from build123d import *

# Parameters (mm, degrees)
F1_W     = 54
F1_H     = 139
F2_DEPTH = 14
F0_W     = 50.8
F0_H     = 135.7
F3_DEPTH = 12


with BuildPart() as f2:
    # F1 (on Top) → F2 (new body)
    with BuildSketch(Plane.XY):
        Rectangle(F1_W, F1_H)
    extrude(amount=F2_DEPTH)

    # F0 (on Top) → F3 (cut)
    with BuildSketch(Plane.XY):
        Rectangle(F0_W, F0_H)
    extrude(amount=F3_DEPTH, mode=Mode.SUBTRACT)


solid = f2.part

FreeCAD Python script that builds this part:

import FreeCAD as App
import Part
import Sketcher

V = App.Vector
Q = App.Units.Quantity


def add_polygon(sketch, points):
    """Adds a closed chain of lines whose ends are joined by coincident constraints."""
    first, n = sketch.GeometryCount, len(points)
    for a, b in zip(points, points[1:] + points[:1]):
        sketch.addGeometry(Part.LineSegment(App.Vector(*a, 0), App.Vector(*b, 0)), False)
    for i in range(n):
        sketch.addConstraint(Sketcher.Constraint("Coincident", first + i, 2, first + (i + 1) % n, 1))

doc = App.newDocument("Part")
params = doc.addObject("Spreadsheet::Sheet", "Params")
for row, (alias, value) in enumerate([
    ("sketch1_width", "54 mm"),
    ("sketch1_height", "139 mm"),
    ("pad1_length", "14 mm"),
    ("sketch2_width", "50.8 mm"),
    ("sketch2_height", "135.7 mm"),
    ("pocket1_length", "12 mm"),
], start=1):
    params.set(f"A{row}", alias)
    params.set(f"B{row}", "=" + value)
    params.setAlias(f"B{row}", alias)

body = doc.addObject("PartDesign::Body", "Body")

sketch1 = body.newObject("Sketcher::SketchObject", "Sketch")
sketch1.AttachmentSupport = (doc.getObject("XY_Plane"), [""])
sketch1.MapMode = "FlatFace"
add_polygon(sketch1, [(-27, 70), (-27, -70), (27, -70), (27, 70)])
sketch1.addConstraint([
    Sketcher.Constraint("Vertical", 0),
    Sketcher.Constraint("Horizontal", 1),
    Sketcher.Constraint("Vertical", 2),
    Sketcher.Constraint("Horizontal", 3),
    Sketcher.Constraint("Symmetric", 0, 2, 2, 2, -1, 1),
    Sketcher.Constraint("DistanceX", 1, 1, 1, 2, Q("54 mm")),
    Sketcher.Constraint("DistanceY", 0, 2, 0, 1, Q("139 mm")),
])
sketch1.setExpression("Constraints[9]", "Params.sketch1_width")
sketch1.setExpression("Constraints[10]", "Params.sketch1_height")
pad1 = body.newObject("PartDesign::Pad", "Pad")
pad1.Profile = sketch1
pad1.setExpression("Length", "Params.pad1_length")

sketch2 = body.newObject("Sketcher::SketchObject", "Sketch001")
sketch2.AttachmentSupport = (doc.getObject("XY_Plane"), [""])
sketch2.MapMode = "FlatFace"
add_polygon(sketch2, [(-25, 68), (-25, -68), (25, -68), (25, 68)])
sketch2.addConstraint([
    Sketcher.Constraint("Vertical", 0),
    Sketcher.Constraint("Horizontal", 1),
    Sketcher.Constraint("Vertical", 2),
    Sketcher.Constraint("Horizontal", 3),
    Sketcher.Constraint("Symmetric", 0, 2, 2, 2, -1, 1),
    Sketcher.Constraint("DistanceX", 1, 1, 1, 2, Q("50.8 mm")),
    Sketcher.Constraint("DistanceY", 0, 2, 0, 1, Q("135.7 mm")),
])
sketch2.setExpression("Constraints[9]", "Params.sketch2_width")
sketch2.setExpression("Constraints[10]", "Params.sketch2_height")
pocket1 = body.newObject("PartDesign::Pocket", "Pocket")
pocket1.Profile = sketch2
pocket1.setExpression("Length", "Params.pocket1_length")
pocket1.Reversed = True

doc.recompute()
